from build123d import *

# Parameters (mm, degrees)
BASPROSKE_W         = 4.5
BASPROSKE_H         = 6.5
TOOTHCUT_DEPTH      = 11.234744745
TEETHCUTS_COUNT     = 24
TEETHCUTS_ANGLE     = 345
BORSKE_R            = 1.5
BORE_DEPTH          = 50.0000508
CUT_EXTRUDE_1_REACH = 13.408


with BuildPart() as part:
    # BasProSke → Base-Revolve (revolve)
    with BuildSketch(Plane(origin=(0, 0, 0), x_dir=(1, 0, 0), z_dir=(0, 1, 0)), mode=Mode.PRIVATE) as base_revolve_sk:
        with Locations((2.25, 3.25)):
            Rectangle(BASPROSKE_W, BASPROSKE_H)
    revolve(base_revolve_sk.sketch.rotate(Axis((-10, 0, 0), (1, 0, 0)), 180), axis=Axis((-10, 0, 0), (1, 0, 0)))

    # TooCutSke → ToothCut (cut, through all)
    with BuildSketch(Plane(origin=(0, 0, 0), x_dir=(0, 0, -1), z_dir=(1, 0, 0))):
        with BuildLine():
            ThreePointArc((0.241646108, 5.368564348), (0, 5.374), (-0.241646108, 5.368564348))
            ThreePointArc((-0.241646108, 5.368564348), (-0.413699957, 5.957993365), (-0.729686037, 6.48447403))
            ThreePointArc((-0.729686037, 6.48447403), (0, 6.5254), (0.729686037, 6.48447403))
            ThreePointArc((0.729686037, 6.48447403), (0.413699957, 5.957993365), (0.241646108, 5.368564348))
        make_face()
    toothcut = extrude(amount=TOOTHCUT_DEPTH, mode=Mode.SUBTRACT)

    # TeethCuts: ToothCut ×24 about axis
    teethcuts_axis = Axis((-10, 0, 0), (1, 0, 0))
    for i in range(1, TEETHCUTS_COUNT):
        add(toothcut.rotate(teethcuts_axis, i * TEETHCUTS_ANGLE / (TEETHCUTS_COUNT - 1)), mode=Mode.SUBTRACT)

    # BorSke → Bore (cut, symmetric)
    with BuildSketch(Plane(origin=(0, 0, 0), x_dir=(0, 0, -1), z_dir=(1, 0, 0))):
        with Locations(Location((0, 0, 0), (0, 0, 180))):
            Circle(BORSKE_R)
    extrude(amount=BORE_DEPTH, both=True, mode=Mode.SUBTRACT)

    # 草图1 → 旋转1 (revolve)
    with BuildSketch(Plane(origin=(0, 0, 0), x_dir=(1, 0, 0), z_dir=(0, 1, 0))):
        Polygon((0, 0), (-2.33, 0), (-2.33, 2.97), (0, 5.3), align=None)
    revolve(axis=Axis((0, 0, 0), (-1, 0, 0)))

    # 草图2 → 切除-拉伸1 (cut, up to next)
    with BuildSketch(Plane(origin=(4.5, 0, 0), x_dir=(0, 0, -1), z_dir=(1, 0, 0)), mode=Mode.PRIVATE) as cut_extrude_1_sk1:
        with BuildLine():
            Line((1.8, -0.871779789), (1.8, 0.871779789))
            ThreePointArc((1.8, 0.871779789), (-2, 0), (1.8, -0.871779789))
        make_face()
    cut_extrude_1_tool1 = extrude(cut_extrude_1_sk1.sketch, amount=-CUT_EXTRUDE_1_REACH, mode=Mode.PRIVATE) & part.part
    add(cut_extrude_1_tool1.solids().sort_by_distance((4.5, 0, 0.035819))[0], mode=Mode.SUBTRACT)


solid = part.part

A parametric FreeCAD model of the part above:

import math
import FreeCAD as App
import Part
import Sketcher
Q = App.Units.Quantity

doc = App.newDocument("Part")
body = doc.addObject("PartDesign::Body", "Body")

sketch1 = body.newObject("Sketcher::SketchObject", "Sketch")
sketch1.AttachmentSupport = (doc.getObject("XZ_Plane"), [""])
sketch1.MapMode = "FlatFace"
sketch1.addGeometry([
    Part.LineSegment(App.Vector(0, -6.5, 0), App.Vector(0, 0, 0)),
    Part.LineSegment(App.Vector(0, 0, 0), App.Vector(4.5, 0, 0)),
    Part.LineSegment(App.Vector(4.5, 0, 0), App.Vector(4.5, -6.5, 0)),
    Part.LineSegment(App.Vector(4.5, -6.5, 0), App.Vector(0, -6.5, 0)),
], False)
sketch1.addConstraint([
    Sketcher.Constraint("Coincident", 0, 2, 1, 1),
    Sketcher.Constraint("Coincident", 1, 2, 2, 1),
    Sketcher.Constraint("Coincident", 2, 2, 3, 1),
    Sketcher.Constraint("Coincident", 3, 2, 0, 1),
    Sketcher.Constraint("Vertical", 0),
    Sketcher.Constraint("Horizontal", 1),
    Sketcher.Constraint("Vertical", 2),
    Sketcher.Constraint("Horizontal", 3),
    Sketcher.Constraint("Coincident", 0, 2, -1, 1),
    Sketcher.Constraint("DistanceX", 1, 1, 1, 2, 4.5),
    Sketcher.Constraint("DistanceY", 0, 1, 0, 2, 6.5),
])
revolution = body.newObject("PartDesign::Revolution", "Revolution")
revolution.Profile = sketch1
revolution.ReferenceAxis = (sketch1, ["H_Axis"])
revolution.Angle = 360

sketch2 = body.newObject("Sketcher::SketchObject", "Sketch001")
sketch2.AttachmentSupport = (doc.getObject("YZ_Plane"), [""])
sketch2.MapMode = "FlatFace"
sketch2.addGeometry([
    Part.ArcOfCircle(Part.Circle(App.Vector(0, 0, 0), App.Vector(0, 0, 1), 5.374), math.radians(-2.577218), math.radians(2.577218)),
    Part.ArcOfCircle(Part.Circle(App.Vector(4.99631, -2.612601, 0), App.Vector(0, 0, 1), 2.4), math.radians(51.678882), math.radians(81.077064)),
    Part.ArcOfCircle(Part.Circle(App.Vector(0, 0, 0), App.Vector(0, 0, 1), 6.5254), math.radians(-6.420381), math.radians(6.420381)),
    Part.ArcOfCircle(Part.Circle(App.Vector(4.99631, 2.612601, 0), App.Vector(0, 0, 1), 2.4), math.radians(-81.077064), math.radians(-51.678882)),
], False)
sketch2.addConstraint([
    Sketcher.Constraint("Coincident", 0, 1, 1, 2),
    Sketcher.Constraint("Coincident", 1, 1, 2, 1),
    Sketcher.Constraint("Coincident", 2, 2, 3, 2),
    Sketcher.Constraint("Coincident", 3, 1, 0, 2),
    Sketcher.Constraint("Coincident", 0, 3, -1, 1),
    Sketcher.Constraint("Coincident", 2, 3, -1, 1),
    Sketcher.Constraint("Equal", 1, 3),
    Sketcher.Constraint("Symmetric", 1, 3, 3, 3, -1),
    Sketcher.Constraint("Radius", 1, 2.4),
    Sketcher.Constraint("Radius", 0, 5.374),
    Sketcher.Constraint("Radius", 2, 6.5254),
    Sketcher.Constraint("DistanceY", 1, 3, -1, 1, 2.612601),
    Sketcher.Constraint("DistanceX", -1, 1, 1, 3, 4.99631),
])
pocket1 = body.newObject("PartDesign::Pocket", "Pocket")
pocket1.Profile = sketch2
pocket1.Type = "ThroughAll"
pocket1.Reversed = True
doc.recompute()

polarpattern = body.newObject("PartDesign::PolarPattern", "PolarPattern")
polarpattern.Originals = [pocket1]
polarpattern.Axis = (doc.getObject("X_Axis"), [""])
polarpattern.Angle = 360
polarpattern.Occurrences = 24
body.Tip = polarpattern

sketch3 = body.newObject("Sketcher::SketchObject", "Sketch002")
sketch3.AttachmentSupport = (doc.getObject("YZ_Plane"), [""])
sketch3.MapMode = "FlatFace"
sketch3.addGeometry(Part.Circle(App.Vector(0, 0, 0), App.Vector(0, 0, 1), 1.5), False)
sketch3.addConstraint([
    Sketcher.Constraint("Coincident", 0, 3, -1, 1),
    Sketcher.Constraint("Diameter", 0, 3.0),
])
pocket2 = body.newObject("PartDesign::Pocket", "Pocket001")
pocket2.Profile = sketch3
pocket2.Length = 100.000102
pocket2.Midplane = True

sketch4 = body.newObject("Sketcher::SketchObject", "Sketch003")
sketch4.AttachmentSupport = (doc.getObject("XZ_Plane"), [""])
sketch4.MapMode = "FlatFace"
sketch4.addGeometry([
    Part.LineSegment(App.Vector(-2.33, 0, 0), App.Vector(0, 0, 0)),
    Part.LineSegment(App.Vector(0, 0, 0), App.Vector(0, -5.3, 0)),
    Part.LineSegment(App.Vector(0, -5.3, 0), App.Vector(-2.33, -2.97, 0)),
    Part.LineSegment(App.Vector(-2.33, -2.97, 0), App.Vector(-2.33, 0, 0)),
], False)
sketch4.addConstraint([
    Sketcher.Constraint("Coincident", 0, 2, 1, 1),
    Sketcher.Constraint("Coincident", 1, 2, 2, 1),
    Sketcher.Constraint("Coincident", 2, 2, 3, 1),
    Sketcher.Constraint("Coincident", 3, 2, 0, 1),
    Sketcher.Constraint("Horizontal", 0),
    Sketcher.Constraint("Vertical", 1),
    Sketcher.Constraint("Vertical", 3),
    Sketcher.Constraint("Coincident", 0, 2, -1, 1),
    Sketcher.Constraint("Angle", 2, Q("135 deg")),
    Sketcher.Constraint("DistanceY", 1, 2, 1, 1, 5.3),
    Sketcher.Constraint("DistanceX", 0, 1, 0, 2, 2.33),
])
revolution2 = body.newObject("PartDesign::Revolution", "Revolution001")
revolution2.Profile = sketch4
revolution2.ReferenceAxis = (sketch4, ["H_Axis"])
revolution2.Angle = 360

sketch5 = body.newObject("Sketcher::SketchObject", "Sketch004")
sketch5.AttachmentSupport = (doc.getObject("YZ_Plane"), [""])
sketch5.MapMode = "FlatFace"
sketch5.AttachmentOffset = App.Placement(App.Vector(0, 0, 4.5), App.Rotation())
sketch5.addGeometry([
    Part.LineSegment(App.Vector(-0.87178, -1.8, 0), App.Vector(0.87178, -1.8, 0)),
    Part.ArcOfCircle(Part.Circle(App.Vector(0, 0, 0), App.Vector(0, 0, 1), 2), math.radians(-64.158067), math.radians(244.158067)),
], False)
sketch5.addConstraint([
    Sketcher.Constraint("Coincident", 0, 1, 1, 2),
    Sketcher.Constraint("Coincident", 1, 1, 0, 2),
    Sketcher.Constraint("Horizontal", 0),
    Sketcher.Constraint("Coincident", 1, 3, -1, 1),
    Sketcher.Constraint("Radius", 1, 2.0),
    Sketcher.Constraint("DistanceY", 0, 1, -1, 1, 1.8),
])
pocket3 = body.newObject("PartDesign::Pocket", "Pocket002")
pocket3.Profile = sketch5
pocket3.Length = 6.83

doc.recompute()
